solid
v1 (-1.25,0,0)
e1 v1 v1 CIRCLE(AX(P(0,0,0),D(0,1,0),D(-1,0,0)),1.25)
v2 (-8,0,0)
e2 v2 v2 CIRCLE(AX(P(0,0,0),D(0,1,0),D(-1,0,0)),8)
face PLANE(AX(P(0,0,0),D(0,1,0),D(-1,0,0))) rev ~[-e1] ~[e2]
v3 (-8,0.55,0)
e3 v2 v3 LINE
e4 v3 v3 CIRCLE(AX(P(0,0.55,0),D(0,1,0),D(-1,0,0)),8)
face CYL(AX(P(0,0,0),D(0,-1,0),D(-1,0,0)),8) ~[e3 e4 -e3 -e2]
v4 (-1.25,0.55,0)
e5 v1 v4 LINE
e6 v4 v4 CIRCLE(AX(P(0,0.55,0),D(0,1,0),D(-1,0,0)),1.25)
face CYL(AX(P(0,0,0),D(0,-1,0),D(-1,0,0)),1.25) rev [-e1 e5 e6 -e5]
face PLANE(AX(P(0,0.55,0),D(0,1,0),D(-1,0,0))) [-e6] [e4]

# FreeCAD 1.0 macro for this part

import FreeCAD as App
import Part
import Sketcher
from FreeCAD import Vector
Q = App.Units.Quantity

doc = App.newDocument("Part")
body = doc.addObject("PartDesign::Body", "Body")

# Sketch on XZ plane
sketch1 = body.newObject("Sketcher::SketchObject", "Sketch")
sketch1.AttachmentSupport = (doc.getObject("XZ_Plane"), [""])
sketch1.MapMode = "FlatFace"
sketch1.addGeometry(Part.Circle(Vector(0, 0, 0), Vector(0, 0, 1), 8), False)
sketch1.addGeometry(Part.Circle(Vector(0, 0, 0), Vector(0, 0, 1), 1.2), False)
sketch1.addConstraint(Sketcher.Constraint("Coincident", 0, 3, -1, 1))
sketch1.addConstraint(Sketcher.Constraint("Coincident", 1, 3, -1, 1))
sketch1.addConstraint(Sketcher.Constraint("Diameter", 0, Q("16 mm")))
sketch1.addConstraint(Sketcher.Constraint("Diameter", 1, Q("2.5 mm")))
pad1 = body.newObject("PartDesign::Pad", "Pad")
pad1.Profile = sketch1
pad1.Length = 0.55
pad1.Reversed = True

doc.recompute()
